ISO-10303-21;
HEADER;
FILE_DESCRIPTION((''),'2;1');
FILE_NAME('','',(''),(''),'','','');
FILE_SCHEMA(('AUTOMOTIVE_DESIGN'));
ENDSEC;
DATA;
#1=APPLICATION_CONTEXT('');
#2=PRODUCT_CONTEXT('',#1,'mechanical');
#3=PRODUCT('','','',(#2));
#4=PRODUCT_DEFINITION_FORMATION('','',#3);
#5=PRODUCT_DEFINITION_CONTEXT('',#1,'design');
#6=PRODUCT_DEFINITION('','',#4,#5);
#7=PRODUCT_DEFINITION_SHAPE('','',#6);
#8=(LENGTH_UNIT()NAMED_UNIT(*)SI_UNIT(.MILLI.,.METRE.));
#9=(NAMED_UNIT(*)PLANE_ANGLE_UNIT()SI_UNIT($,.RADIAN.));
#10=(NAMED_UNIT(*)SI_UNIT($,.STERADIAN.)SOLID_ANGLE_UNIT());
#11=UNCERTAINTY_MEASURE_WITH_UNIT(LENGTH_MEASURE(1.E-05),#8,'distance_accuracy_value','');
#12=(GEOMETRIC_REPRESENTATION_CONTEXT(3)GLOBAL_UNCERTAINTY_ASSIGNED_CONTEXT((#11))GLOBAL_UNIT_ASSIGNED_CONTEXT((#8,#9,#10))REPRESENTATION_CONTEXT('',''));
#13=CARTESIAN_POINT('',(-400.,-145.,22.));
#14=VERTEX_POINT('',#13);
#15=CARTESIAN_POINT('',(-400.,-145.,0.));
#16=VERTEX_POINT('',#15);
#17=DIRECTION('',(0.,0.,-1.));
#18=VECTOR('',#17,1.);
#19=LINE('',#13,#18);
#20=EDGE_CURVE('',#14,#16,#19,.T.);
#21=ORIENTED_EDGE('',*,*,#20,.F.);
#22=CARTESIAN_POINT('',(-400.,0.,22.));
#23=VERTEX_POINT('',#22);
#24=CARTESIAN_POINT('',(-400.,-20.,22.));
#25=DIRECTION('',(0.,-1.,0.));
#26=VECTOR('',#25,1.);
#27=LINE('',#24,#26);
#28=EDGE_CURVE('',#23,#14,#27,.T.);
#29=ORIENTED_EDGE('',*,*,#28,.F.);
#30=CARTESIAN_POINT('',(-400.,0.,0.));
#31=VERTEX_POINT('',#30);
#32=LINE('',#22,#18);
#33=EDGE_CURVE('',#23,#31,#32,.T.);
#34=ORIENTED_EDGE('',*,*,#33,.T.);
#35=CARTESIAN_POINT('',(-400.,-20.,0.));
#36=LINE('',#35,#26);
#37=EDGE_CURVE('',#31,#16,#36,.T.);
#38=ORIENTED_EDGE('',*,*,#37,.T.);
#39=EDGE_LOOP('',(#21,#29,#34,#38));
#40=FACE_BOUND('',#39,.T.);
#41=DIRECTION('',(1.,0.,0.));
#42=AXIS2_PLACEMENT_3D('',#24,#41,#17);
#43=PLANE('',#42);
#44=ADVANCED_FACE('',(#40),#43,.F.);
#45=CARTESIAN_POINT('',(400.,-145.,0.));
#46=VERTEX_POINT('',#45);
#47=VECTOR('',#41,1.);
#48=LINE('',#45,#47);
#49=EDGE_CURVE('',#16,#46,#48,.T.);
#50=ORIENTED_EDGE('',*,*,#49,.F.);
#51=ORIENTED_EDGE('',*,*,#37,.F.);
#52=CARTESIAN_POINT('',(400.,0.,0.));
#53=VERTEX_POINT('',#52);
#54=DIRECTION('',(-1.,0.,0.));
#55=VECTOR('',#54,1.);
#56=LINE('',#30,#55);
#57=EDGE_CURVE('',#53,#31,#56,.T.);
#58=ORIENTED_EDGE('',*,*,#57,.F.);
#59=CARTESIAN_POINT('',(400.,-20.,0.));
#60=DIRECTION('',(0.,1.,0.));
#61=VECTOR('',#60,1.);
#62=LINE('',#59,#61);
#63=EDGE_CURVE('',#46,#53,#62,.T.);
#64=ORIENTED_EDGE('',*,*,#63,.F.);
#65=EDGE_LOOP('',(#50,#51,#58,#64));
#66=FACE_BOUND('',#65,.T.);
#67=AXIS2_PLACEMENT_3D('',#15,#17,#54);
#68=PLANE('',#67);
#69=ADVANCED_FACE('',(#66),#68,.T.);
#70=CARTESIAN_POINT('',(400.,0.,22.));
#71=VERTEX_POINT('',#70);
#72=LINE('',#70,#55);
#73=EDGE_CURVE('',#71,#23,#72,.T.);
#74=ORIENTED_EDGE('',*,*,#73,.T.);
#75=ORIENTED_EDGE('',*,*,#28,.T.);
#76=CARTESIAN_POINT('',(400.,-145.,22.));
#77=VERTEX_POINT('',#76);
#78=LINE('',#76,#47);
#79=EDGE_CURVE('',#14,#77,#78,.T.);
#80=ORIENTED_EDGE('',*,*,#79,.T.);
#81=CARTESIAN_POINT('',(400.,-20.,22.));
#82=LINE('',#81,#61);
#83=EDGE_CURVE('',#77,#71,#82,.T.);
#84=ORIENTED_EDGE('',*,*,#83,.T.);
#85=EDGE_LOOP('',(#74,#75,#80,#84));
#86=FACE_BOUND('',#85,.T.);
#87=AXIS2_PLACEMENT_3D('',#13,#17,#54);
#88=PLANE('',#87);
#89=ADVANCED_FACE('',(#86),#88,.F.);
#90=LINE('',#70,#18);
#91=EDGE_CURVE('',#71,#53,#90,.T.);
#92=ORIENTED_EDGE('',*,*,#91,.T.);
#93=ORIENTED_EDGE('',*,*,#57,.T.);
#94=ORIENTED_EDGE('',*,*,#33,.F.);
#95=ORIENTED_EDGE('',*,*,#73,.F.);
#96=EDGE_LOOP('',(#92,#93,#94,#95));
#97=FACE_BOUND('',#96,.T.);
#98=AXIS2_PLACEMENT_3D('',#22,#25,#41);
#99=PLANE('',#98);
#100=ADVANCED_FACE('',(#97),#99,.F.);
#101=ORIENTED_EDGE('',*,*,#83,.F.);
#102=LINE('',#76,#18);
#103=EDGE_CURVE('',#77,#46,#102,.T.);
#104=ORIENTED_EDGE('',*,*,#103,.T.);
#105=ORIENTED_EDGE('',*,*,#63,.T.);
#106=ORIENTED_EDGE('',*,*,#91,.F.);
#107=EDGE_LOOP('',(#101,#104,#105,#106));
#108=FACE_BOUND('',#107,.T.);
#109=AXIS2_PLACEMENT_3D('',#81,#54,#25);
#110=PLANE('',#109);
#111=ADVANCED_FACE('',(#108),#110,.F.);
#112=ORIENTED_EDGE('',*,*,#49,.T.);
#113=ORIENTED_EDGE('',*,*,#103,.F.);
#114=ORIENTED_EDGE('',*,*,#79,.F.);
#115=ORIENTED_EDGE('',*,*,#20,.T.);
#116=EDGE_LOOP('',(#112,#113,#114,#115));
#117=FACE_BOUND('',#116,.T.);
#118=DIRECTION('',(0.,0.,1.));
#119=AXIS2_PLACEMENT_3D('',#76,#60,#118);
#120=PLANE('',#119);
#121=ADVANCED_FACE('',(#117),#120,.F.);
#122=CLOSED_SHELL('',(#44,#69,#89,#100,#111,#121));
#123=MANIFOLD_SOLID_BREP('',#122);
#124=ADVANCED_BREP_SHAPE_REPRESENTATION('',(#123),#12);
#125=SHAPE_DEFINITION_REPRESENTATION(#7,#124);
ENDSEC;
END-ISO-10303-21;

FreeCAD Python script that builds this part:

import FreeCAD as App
import Part
import Sketcher

doc = App.newDocument("Part")
params = doc.addObject("Spreadsheet::Sheet", "Params")
for row, (alias, value) in enumerate([
    ("sketch1_width", "800 mm"),
    ("sketch1_height", "145 mm"),
    ("pad1_length", "22 mm"),
], start=1):
    params.set(f"A{row}", alias)
    params.set(f"B{row}", "=" + value)
    params.setAlias(f"B{row}", alias)

body = doc.addObject("PartDesign::Body", "Body")

sketch1 = doc.addObject("Sketcher::SketchObject", "Sketch")
body.addObject(sketch1)
sketch1.AttachmentSupport = (doc.XY_Plane, [""])
sketch1.MapMode = "FlatFace"
sketch1.addGeometry(Part.LineSegment(App.Vector(-400, 0, 0), App.Vector(-400, -145, 0)), False)
sketch1.addGeometry(Part.LineSegment(App.Vector(-400, -145, 0), App.Vector(400, -145, 0)), False)
sketch1.addGeometry(Part.LineSegment(App.Vector(400, -145, 0), App.Vector(400, 0, 0)), False)
sketch1.addGeometry(Part.LineSegment(App.Vector(400, 0, 0), App.Vector(-400, 0, 0)), False)
sketch1.addConstraint(Sketcher.Constraint("Coincident", 0, 2, 1, 1))
sketch1.addConstraint(Sketcher.Constraint("Coincident", 1, 2, 2, 1))
sketch1.addConstraint(Sketcher.Constraint("Coincident", 2, 2, 3, 1))
sketch1.addConstraint(Sketcher.Constraint("Coincident", 3, 2, 0, 1))
sketch1.addConstraint(Sketcher.Constraint("Vertical", 0))
sketch1.addConstraint(Sketcher.Constraint("Horizontal", 1))
sketch1.addConstraint(Sketcher.Constraint("Vertical", 2))
sketch1.addConstraint(Sketcher.Constraint("Horizontal", 3))
sketch1.addConstraint(Sketcher.Constraint("Symmetric", 2, 2, 3, 2, -1, 1))
sketch1.addConstraint(Sketcher.Constraint("DistanceX", 1, 1, 1, 2, 800.0))
sketch1.addConstraint(Sketcher.Constraint("DistanceY", 0, 2, 0, 1, 145.0))
sketch1.setExpression("Constraints[9]", "Params.sketch1_width")
sketch1.setExpression("Constraints[10]", "Params.sketch1_height")
pad1 = doc.addObject("PartDesign::Pad", "Pad")
body.addObject(pad1)
pad1.Profile = sketch1
pad1.setExpression("Length", "Params.pad1_length")

doc.recompute()
